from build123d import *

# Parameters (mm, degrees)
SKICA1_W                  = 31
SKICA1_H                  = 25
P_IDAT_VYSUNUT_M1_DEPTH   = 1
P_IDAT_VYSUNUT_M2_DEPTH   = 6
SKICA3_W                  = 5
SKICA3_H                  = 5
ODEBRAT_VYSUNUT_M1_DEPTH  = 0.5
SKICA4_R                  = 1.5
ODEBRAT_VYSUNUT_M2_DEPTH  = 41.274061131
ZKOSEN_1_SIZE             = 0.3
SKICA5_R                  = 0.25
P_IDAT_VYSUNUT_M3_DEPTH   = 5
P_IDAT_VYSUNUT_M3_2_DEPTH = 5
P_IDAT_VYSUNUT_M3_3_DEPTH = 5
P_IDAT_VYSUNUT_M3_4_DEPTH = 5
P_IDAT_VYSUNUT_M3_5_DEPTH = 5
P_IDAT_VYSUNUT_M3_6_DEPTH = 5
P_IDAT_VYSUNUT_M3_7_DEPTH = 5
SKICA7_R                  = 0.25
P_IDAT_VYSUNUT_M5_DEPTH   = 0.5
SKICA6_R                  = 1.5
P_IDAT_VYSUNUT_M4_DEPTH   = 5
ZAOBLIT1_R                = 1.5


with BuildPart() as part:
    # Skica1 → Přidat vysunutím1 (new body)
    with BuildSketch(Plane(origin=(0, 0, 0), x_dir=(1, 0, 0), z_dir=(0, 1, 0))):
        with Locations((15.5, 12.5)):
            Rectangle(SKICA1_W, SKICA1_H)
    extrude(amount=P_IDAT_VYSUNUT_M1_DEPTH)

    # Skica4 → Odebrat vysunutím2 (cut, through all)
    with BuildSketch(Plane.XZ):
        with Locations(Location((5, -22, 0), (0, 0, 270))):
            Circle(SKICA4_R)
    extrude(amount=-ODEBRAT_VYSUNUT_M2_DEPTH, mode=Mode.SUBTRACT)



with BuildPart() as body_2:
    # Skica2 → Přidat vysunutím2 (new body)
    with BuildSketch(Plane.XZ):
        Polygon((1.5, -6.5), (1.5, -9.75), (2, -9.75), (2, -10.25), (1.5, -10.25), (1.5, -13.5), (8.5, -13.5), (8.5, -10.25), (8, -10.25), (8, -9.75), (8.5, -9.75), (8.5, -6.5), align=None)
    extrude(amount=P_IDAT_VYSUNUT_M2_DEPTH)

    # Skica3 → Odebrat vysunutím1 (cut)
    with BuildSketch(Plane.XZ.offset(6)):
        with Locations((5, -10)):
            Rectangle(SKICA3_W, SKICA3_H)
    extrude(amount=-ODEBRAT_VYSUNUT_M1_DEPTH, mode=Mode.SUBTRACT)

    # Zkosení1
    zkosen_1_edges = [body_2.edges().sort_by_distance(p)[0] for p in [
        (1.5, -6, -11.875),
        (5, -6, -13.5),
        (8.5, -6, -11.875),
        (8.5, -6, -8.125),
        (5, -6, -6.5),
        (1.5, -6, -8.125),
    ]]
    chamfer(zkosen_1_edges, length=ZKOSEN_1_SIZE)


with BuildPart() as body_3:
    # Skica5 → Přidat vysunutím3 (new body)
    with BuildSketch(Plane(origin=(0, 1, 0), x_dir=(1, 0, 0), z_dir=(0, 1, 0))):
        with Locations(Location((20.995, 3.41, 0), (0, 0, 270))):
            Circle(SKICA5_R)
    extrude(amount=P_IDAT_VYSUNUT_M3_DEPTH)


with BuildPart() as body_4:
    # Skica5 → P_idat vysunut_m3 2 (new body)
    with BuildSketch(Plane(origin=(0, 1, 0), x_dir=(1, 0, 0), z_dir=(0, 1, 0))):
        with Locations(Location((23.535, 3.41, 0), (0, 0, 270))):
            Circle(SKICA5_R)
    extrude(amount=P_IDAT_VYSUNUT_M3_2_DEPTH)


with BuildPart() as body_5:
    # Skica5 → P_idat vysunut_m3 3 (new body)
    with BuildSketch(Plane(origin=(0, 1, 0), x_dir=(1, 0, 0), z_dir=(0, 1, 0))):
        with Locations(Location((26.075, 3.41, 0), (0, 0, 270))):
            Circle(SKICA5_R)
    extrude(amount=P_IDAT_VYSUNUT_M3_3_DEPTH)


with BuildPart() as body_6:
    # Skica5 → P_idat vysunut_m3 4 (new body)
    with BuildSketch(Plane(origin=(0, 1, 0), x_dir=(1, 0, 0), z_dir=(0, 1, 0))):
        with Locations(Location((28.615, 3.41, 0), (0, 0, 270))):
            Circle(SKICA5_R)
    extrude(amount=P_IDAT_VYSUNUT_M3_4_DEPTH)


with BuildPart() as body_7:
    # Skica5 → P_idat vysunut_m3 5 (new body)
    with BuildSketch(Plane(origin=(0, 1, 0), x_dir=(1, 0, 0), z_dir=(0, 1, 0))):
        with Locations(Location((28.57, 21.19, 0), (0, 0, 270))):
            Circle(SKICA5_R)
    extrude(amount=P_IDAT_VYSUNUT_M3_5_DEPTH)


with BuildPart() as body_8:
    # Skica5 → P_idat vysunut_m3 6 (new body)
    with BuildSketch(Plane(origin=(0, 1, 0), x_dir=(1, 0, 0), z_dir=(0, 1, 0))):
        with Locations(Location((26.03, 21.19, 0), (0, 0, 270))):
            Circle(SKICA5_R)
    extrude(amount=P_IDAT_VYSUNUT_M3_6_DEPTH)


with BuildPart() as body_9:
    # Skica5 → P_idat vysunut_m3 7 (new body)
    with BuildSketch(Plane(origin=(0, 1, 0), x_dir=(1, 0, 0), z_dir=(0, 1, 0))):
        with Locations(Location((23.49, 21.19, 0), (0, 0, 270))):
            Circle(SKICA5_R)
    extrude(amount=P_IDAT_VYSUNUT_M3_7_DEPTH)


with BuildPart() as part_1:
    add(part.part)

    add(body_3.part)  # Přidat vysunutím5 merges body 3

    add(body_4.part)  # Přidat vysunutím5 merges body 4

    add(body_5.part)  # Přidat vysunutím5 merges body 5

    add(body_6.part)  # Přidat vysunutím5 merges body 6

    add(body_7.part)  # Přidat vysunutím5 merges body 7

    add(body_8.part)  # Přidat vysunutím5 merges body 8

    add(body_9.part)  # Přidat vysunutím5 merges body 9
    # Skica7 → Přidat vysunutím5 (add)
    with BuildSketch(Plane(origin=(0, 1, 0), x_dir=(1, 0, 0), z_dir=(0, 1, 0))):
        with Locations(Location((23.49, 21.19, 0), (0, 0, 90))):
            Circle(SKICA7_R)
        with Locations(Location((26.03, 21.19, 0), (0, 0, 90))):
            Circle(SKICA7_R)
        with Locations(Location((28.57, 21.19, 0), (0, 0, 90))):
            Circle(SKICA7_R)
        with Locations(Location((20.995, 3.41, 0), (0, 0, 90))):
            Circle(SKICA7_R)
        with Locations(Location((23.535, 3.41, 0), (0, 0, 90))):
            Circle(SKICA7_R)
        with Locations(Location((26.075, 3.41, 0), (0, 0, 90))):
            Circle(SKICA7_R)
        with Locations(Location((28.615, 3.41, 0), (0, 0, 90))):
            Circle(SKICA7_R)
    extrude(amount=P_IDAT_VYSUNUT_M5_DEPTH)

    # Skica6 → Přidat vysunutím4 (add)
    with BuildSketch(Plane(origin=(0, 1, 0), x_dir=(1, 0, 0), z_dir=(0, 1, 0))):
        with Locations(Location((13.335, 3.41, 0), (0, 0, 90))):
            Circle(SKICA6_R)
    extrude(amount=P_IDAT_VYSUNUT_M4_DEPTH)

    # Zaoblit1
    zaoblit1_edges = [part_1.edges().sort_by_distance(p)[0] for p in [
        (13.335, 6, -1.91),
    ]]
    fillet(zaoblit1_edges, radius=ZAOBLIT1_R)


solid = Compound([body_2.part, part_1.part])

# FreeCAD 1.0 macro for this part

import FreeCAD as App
import Part
import Sketcher


def edges_at(feature, points):
    """Names of the edges that pass closest to the given points."""
    edges = feature.Shape.Edges
    near = lambda p: min(range(len(edges)), key=lambda i: edges[i].distToShape(Part.Vertex(*p))[0])
    return sorted({f"Edge{near(p) + 1}" for p in points})


def add_polygon(sketch, points):
    """Adds a closed chain of lines whose ends are joined by coincident constraints."""
    first, n = sketch.GeometryCount, len(points)
    for a, b in zip(points, points[1:] + points[:1]):
        sketch.addGeometry(Part.LineSegment(App.Vector(*a, 0), App.Vector(*b, 0)), False)
    for i in range(n):
        sketch.addConstraint(Sketcher.Constraint("Coincident", first + i, 2, first + (i + 1) % n, 1))

doc = App.newDocument("Part")
params = doc.addObject("Spreadsheet::Sheet", "Params")
for row, (alias, value) in enumerate([
    ("sketch1_width", "31 mm"),
    ("sketch1_height", "25 mm"),
    ("pad1_length", "1 mm"),
    ("sketch2_diameter", "3 mm"),
    ("sketch3_width", "7 mm"),
    ("sketch3_width2", "0.5 mm"),
    ("pad2_length", "6 mm"),
    ("sketch4_width", "5 mm"),
    ("pocket2_length", "0.5 mm"),
    ("chamfer_size", "0.3 mm"),
    ("sketch5_diameter", "0.5 mm"),
    ("pad3_length", "5 mm"),
    ("sketch6_diameter", "0.5 mm"),
    ("pad4_length", "5 mm"),
    ("sketch7_diameter", "0.5 mm"),
    ("pad5_length", "5 mm"),
    ("sketch8_diameter", "0.5 mm"),
    ("pad6_length", "5 mm"),
    ("sketch9_diameter", "0.5 mm"),
    ("pad7_length", "5 mm"),
    ("sketch10_diameter", "0.5 mm"),
    ("pad8_length", "5 mm"),
    ("sketch11_diameter", "0.5 mm"),
    ("pad9_length", "5 mm"),
    ("sketch12_diameter", "0.5 mm"),
    ("pad10_length", "0.5 mm"),
    ("sketch13_diameter", "3 mm"),
    ("pad11_length", "5 mm"),
    ("fillet_radius", "1.5 mm"),
], start=1):
    params.set(f"A{row}", alias)
    params.set(f"B{row}", "=" + value)
    params.setAlias(f"B{row}", alias)

body = doc.addObject("PartDesign::Body", "Body")

sketch1 = body.newObject("Sketcher::SketchObject", "Sketch")
sketch1.AttachmentSupport = (doc.getObject("XZ_Plane"), [""])
sketch1.MapMode = "FlatFace"
add_polygon(sketch1, [(0, -25), (0, 0), (31, 0), (31, -25)])
sketch1.addConstraint(Sketcher.Constraint("Vertical", 0))
sketch1.addConstraint(Sketcher.Constraint("Horizontal", 1))
sketch1.addConstraint(Sketcher.Constraint("Vertical", 2))
sketch1.addConstraint(Sketcher.Constraint("Horizontal", 3))
sketch1.addConstraint(Sketcher.Constraint("Coincident", 0, 2, -1, 1))
sketch1.addConstraint(Sketcher.Constraint("DistanceX", 1, 1, 1, 2, 31.0))
sketch1.addConstraint(Sketcher.Constraint("DistanceY", 0, 1, 0, 2, 25.0))
sketch1.setExpression("Constraints[9]", "Params.sketch1_width")
sketch1.setExpression("Constraints[10]", "Params.sketch1_height")
pad1 = body.newObject("PartDesign::Pad", "Pad")
pad1.Profile = sketch1
pad1.setExpression("Length", "Params.pad1_length")
pad1.Reversed = True

sketch2 = body.newObject("Sketcher::SketchObject", "Sketch001")
sketch2.AttachmentSupport = (doc.getObject("XZ_Plane"), [""])
sketch2.MapMode = "FlatFace"
sketch2.addGeometry(Part.Circle(App.Vector(5, -22, 0), App.Vector(0, 0, 1), 1.5), False)
sketch2.addConstraint(Sketcher.Constraint("Diameter", 0, 3.0))
sketch2.addConstraint(Sketcher.Constraint("DistanceX", -1, 1, 0, 3, 5.0))
sketch2.addConstraint(Sketcher.Constraint("DistanceY", 0, 3, -1, 1, 22.0))
sketch2.setExpression("Constraints[0]", "Params.sketch2_diameter")
pocket1 = body.newObject("PartDesign::Pocket", "Pocket")
pocket1.Profile = sketch2
pocket1.Type = "ThroughAll"
body2 = doc.addObject("PartDesign::Body", "Body001")

sketch3 = body2.newObject("Sketcher::SketchObject", "Sketch002")
sketch3.AttachmentSupport = (doc.getObject("XZ_Plane001"), [""])
sketch3.MapMode = "FlatFace"
add_polygon(sketch3, [(1.5, -6.5), (1.5, -9.8), (2, -9.8), (2, -10.2), (1.5, -10.2), (1.5, -13.5), (8.5, -13.5), (8.5, -10.2), (8, -10.2), (8, -9.8), (8.5, -9.8), (8.5, -6.5)])
sketch3.addConstraint(Sketcher.Constraint("Vertical", 0))
sketch3.addConstraint(Sketcher.Constraint("Horizontal", 1))
sketch3.addConstraint(Sketcher.Constraint("Vertical", 2))
sketch3.addConstraint(Sketcher.Constraint("Horizontal", 3))
sketch3.addConstraint(Sketcher.Constraint("Vertical", 4))
sketch3.addConstraint(Sketcher.Constraint("Horizontal", 5))
sketch3.addConstraint(Sketcher.Constraint("Vertical", 6))
sketch3.addConstraint(Sketcher.Constraint("Horizontal", 7))
sketch3.addConstraint(Sketcher.Constraint("Vertical", 8))
sketch3.addConstraint(Sketcher.Constraint("Horizontal", 9))
sketch3.addConstraint(Sketcher.Constraint("Vertical", 10))
sketch3.addConstraint(Sketcher.Constraint("Horizontal", 11))
sketch3.addConstraint(Sketcher.Constraint("Horizontal", 3, 2, 6, 2))
sketch3.addConstraint(Sketcher.Constraint("Horizontal", 1, 2, 8, 2))
sketch3.addConstraint(Sketcher.Constraint("Vertical", 0, 2, 3, 2))
sketch3.addConstraint(Sketcher.Constraint("Vertical", 6, 2, 9, 2))
sketch3.addConstraint(Sketcher.Constraint("Equal", 3, 7))
sketch3.addConstraint(Sketcher.Constraint("Equal", 9, 2))
sketch3.addConstraint(Sketcher.Constraint("Equal", 0, 4))
sketch3.addConstraint(Sketcher.Constraint("DistanceX", 5, 1, 5, 2, 7.0))
sketch3.addConstraint(Sketcher.Constraint("DistanceX", 1, 1, 1, 2, 0.5))
sketch3.addConstraint(Sketcher.Constraint("DistanceX", -1, 1, 1, 2, 2.0))
sketch3.addConstraint(Sketcher.Constraint("DistanceY", 5, 2, 10, 2, 7.0))
sketch3.addConstraint(Sketcher.Constraint("DistanceY", 4, 2, -1, 1, 13.5))
sketch3.setExpression("Constraints[31]", "Params.sketch3_width")
sketch3.setExpression("Constraints[32]", "Params.sketch3_width2")
pad2 = body2.newObject("PartDesign::Pad", "Pad001")
pad2.Profile = sketch3
pad2.setExpression("Length", "Params.pad2_length")

sketch4 = body2.newObject("Sketcher::SketchObject", "Sketch003")
sketch4.AttachmentSupport = (doc.getObject("XZ_Plane001"), [""])
sketch4.MapMode = "FlatFace"
sketch4.AttachmentOffset = App.Placement(App.Vector(0, 0, 6), App.Rotation())
add_polygon(sketch4, [(2, -8), (2, -12), (8, -12), (8, -8)])
sketch4.addConstraint(Sketcher.Constraint("Vertical", 0))
sketch4.addConstraint(Sketcher.Constraint("Horizontal", 1))
sketch4.addConstraint(Sketcher.Constraint("Vertical", 2))
sketch4.addConstraint(Sketcher.Constraint("Horizontal", 3))
sketch4.addConstraint(Sketcher.Constraint("Equal", 3, 0))
sketch4.addConstraint(Sketcher.Constraint("DistanceX", 1, 1, 1, 2, 5.0))
sketch4.addConstraint(Sketcher.Constraint("DistanceX", -1, 1, 0, 2, 2.5))
sketch4.addConstraint(Sketcher.Constraint("DistanceY", 0, 2, -1, 1, 12.5))
sketch4.setExpression("Constraints[9]", "Params.sketch4_width")
pocket2 = body2.newObject("PartDesign::Pocket", "Pocket001")
pocket2.Profile = sketch4
pocket2.setExpression("Length", "Params.pocket2_length")
doc.recompute()

chamfer = body2.newObject("PartDesign::Chamfer", "Chamfer")
chamfer.Base = (pocket2, edges_at(pocket2, [
    (1.5, -6, -11.875),
    (5, -6, -13.5),
    (8.5, -6, -11.875),
    (8.5, -6, -8.125),
    (5, -6, -6.5),
    (1.5, -6, -8.125),
]))
chamfer.setExpression("Size", "Params.chamfer_size")
body3 = doc.addObject("PartDesign::Body", "Body002")

sketch5 = body3.newObject("Sketcher::SketchObject", "Sketch004")
sketch5.AttachmentSupport = (doc.getObject("XZ_Plane002"), [""])
sketch5.MapMode = "FlatFace"
sketch5.AttachmentOffset = App.Placement(App.Vector(0, 0, -1), App.Rotation())
sketch5.addGeometry(Part.Circle(App.Vector(21, -3.41, 0), App.Vector(0, 0, 1), 0.25), False)
sketch5.addConstraint(Sketcher.Constraint("Diameter", 0, 0.5))
sketch5.addConstraint(Sketcher.Constraint("DistanceY", 0, 3, -1, 1, 3.41))
sketch5.addConstraint(Sketcher.Constraint("DistanceX", -1, 1, 0, 3, 20.995))
sketch5.setExpression("Constraints[0]", "Params.sketch5_diameter")
pad3 = body3.newObject("PartDesign::Pad", "Pad002")
pad3.Profile = sketch5
pad3.setExpression("Length", "Params.pad3_length")
pad3.Reversed = True
body4 = doc.addObject("PartDesign::Body", "Body003")

sketch6 = body4.newObject("Sketcher::SketchObject", "Sketch005")
sketch6.AttachmentSupport = (doc.getObject("XZ_Plane003"), [""])
sketch6.MapMode = "FlatFace"
sketch6.AttachmentOffset = App.Placement(App.Vector(0, 0, -1), App.Rotation())
sketch6.addGeometry(Part.Circle(App.Vector(23.54, -3.41, 0), App.Vector(0, 0, 1), 0.25), False)
sketch6.addConstraint(Sketcher.Constraint("Diameter", 0, 0.5))
sketch6.addConstraint(Sketcher.Constraint("DistanceY", 0, 3, -1, 1, 3.41))
sketch6.addConstraint(Sketcher.Constraint("DistanceX", -1, 1, 0, 3, 23.535))
sketch6.setExpression("Constraints[0]", "Params.sketch6_diameter")
pad4 = body4.newObject("PartDesign::Pad", "Pad003")
pad4.Profile = sketch6
pad4.setExpression("Length", "Params.pad4_length")
pad4.Reversed = True
body5 = doc.addObject("PartDesign::Body", "Body004")

sketch7 = body5.newObject("Sketcher::SketchObject", "Sketch006")
sketch7.AttachmentSupport = (doc.getObject("XZ_Plane004"), [""])
sketch7.MapMode = "FlatFace"
sketch7.AttachmentOffset = App.Placement(App.Vector(0, 0, -1), App.Rotation())
sketch7.addGeometry(Part.Circle(App.Vector(26.07, -3.41, 0), App.Vector(0, 0, 1), 0.25), False)
sketch7.addConstraint(Sketcher.Constraint("Diameter", 0, 0.5))
sketch7.addConstraint(Sketcher.Constraint("DistanceY", 0, 3, -1, 1, 3.41))
sketch7.addConstraint(Sketcher.Constraint("DistanceX", -1, 1, 0, 3, 26.075))
sketch7.setExpression("Constraints[0]", "Params.sketch7_diameter")
pad5 = body5.newObject("PartDesign::Pad", "Pad004")
pad5.Profile = sketch7
pad5.setExpression("Length", "Params.pad5_length")
pad5.Reversed = True
body6 = doc.addObject("PartDesign::Body", "Body005")

sketch8 = body6.newObject("Sketcher::SketchObject", "Sketch007")
sketch8.AttachmentSupport = (doc.getObject("XZ_Plane005"), [""])
sketch8.MapMode = "FlatFace"
sketch8.AttachmentOffset = App.Placement(App.Vector(0, 0, -1), App.Rotation())
sketch8.addGeometry(Part.Circle(App.Vector(28.61, -3.41, 0), App.Vector(0, 0, 1), 0.25), False)
sketch8.addConstraint(Sketcher.Constraint("Diameter", 0, 0.5))
sketch8.addConstraint(Sketcher.Constraint("DistanceY", 0, 3, -1, 1, 3.41))
sketch8.addConstraint(Sketcher.Constraint("DistanceX", -1, 1, 0, 3, 28.615))
sketch8.setExpression("Constraints[0]", "Params.sketch8_diameter")
pad6 = body6.newObject("PartDesign::Pad", "Pad005")
pad6.Profile = sketch8
pad6.setExpression("Length", "Params.pad6_length")
pad6.Reversed = True
body7 = doc.addObject("PartDesign::Body", "Body006")

sketch9 = body7.newObject("Sketcher::SketchObject", "Sketch008")
sketch9.AttachmentSupport = (doc.getObject("XZ_Plane006"), [""])
sketch9.MapMode = "FlatFace"
sketch9.AttachmentOffset = App.Placement(App.Vector(0, 0, -1), App.Rotation())
sketch9.addGeometry(Part.Circle(App.Vector(28.57, -21.19, 0), App.Vector(0, 0, 1), 0.25), False)
sketch9.addConstraint(Sketcher.Constraint("Diameter", 0, 0.5))
sketch9.addConstraint(Sketcher.Constraint("DistanceX", -1, 1, 0, 3, 28.57))
sketch9.addConstraint(Sketcher.Constraint("DistanceY", 0, 3, -1, 1, 21.19))
sketch9.setExpression("Constraints[0]", "Params.sketch9_diameter")
pad7 = body7.newObject("PartDesign::Pad", "Pad006")
pad7.Profile = sketch9
pad7.setExpression("Length", "Params.pad7_length")
pad7.Reversed = True
body8 = doc.addObject("PartDesign::Body", "Body007")

sketch10 = body8.newObject("Sketcher::SketchObject", "Sketch009")
sketch10.AttachmentSupport = (doc.getObject("XZ_Plane007"), [""])
sketch10.MapMode = "FlatFace"
sketch10.AttachmentOffset = App.Placement(App.Vector(0, 0, -1), App.Rotation())
sketch10.addGeometry(Part.Circle(App.Vector(26.03, -21.19, 0), App.Vector(0, 0, 1), 0.25), False)
sketch10.addConstraint(Sketcher.Constraint("Diameter", 0, 0.5))
sketch10.addConstraint(Sketcher.Constraint("DistanceX", -1, 1, 0, 3, 26.03))
sketch10.addConstraint(Sketcher.Constraint("DistanceY", 0, 3, -1, 1, 21.19))
sketch10.setExpression("Constraints[0]", "Params.sketch10_diameter")
pad8 = body8.newObject("PartDesign::Pad", "Pad007")
pad8.Profile = sketch10
pad8.setExpression("Length", "Params.pad8_length")
pad8.Reversed = True
body9 = doc.addObject("PartDesign::Body", "Body008")

sketch11 = body9.newObject("Sketcher::SketchObject", "Sketch010")
sketch11.AttachmentSupport = (doc.getObject("XZ_Plane008"), [""])
sketch11.MapMode = "FlatFace"
sketch11.AttachmentOffset = App.Placement(App.Vector(0, 0, -1), App.Rotation())
sketch11.addGeometry(Part.Circle(App.Vector(23.49, -21.19, 0), App.Vector(0, 0, 1), 0.25), False)
sketch11.addConstraint(Sketcher.Constraint("Diameter", 0, 0.5))
sketch11.addConstraint(Sketcher.Constraint("DistanceX", -1, 1, 0, 3, 23.49))
sketch11.addConstraint(Sketcher.Constraint("DistanceY", 0, 3, -1, 1, 21.19))
sketch11.setExpression("Constraints[0]", "Params.sketch11_diameter")
pad9 = body9.newObject("PartDesign::Pad", "Pad008")
pad9.Profile = sketch11
pad9.setExpression("Length", "Params.pad9_length")
pad9.Reversed = True
doc.recompute()

boolean = body.newObject("PartDesign::Boolean", "Boolean")
boolean.Type = "Fuse"
boolean.addObjects([body3])
doc.recompute()

boolean2 = body.newObject("PartDesign::Boolean", "Boolean001")
boolean2.Type = "Fuse"
boolean2.addObjects([body4])
doc.recompute()

boolean3 = body.newObject("PartDesign::Boolean", "Boolean002")
boolean3.Type = "Fuse"
boolean3.addObjects([body5])
doc.recompute()

boolean4 = body.newObject("PartDesign::Boolean", "Boolean003")
boolean4.Type = "Fuse"
boolean4.addObjects([body6])
doc.recompute()

boolean5 = body.newObject("PartDesign::Boolean", "Boolean004")
boolean5.Type = "Fuse"
boolean5.addObjects([body7])
doc.recompute()

boolean6 = body.newObject("PartDesign::Boolean", "Boolean005")
boolean6.Type = "Fuse"
boolean6.addObjects([body8])
doc.recompute()

boolean7 = body.newObject("PartDesign::Boolean", "Boolean006")
boolean7.Type = "Fuse"
boolean7.addObjects([body9])

sketch12 = body.newObject("Sketcher::SketchObject", "Sketch011")
sketch12.AttachmentSupport = (doc.getObject("XZ_Plane"), [""])
sketch12.MapMode = "FlatFace"
sketch12.AttachmentOffset = App.Placement(App.Vector(0, 0, -1), App.Rotation())
sketch12.addGeometry(Part.Circle(App.Vector(23.49, -21.19, 0), App.Vector(0, 0, 1), 0.25), False)
sketch12.addGeometry(Part.Circle(App.Vector(26.03, -21.19, 0), App.Vector(0, 0, 1), 0.25), False)
sketch12.addGeometry(Part.Circle(App.Vector(28.57, -21.19, 0), App.Vector(0, 0, 1), 0.25), False)
sketch12.addGeometry(Part.Circle(App.Vector(21, -3.41, 0), App.Vector(0, 0, 1), 0.25), False)
sketch12.addGeometry(Part.Circle(App.Vector(23.54, -3.41, 0), App.Vector(0, 0, 1), 0.25), False)
sketch12.addGeometry(Part.Circle(App.Vector(26.07, -3.41, 0), App.Vector(0, 0, 1), 0.25), False)
sketch12.addGeometry(Part.Circle(App.Vector(28.61, -3.41, 0), App.Vector(0, 0, 1), 0.25), False)
sketch12.addConstraint(Sketcher.Constraint("Equal", 0, 1))
sketch12.addConstraint(Sketcher.Constraint("Equal", 1, 2))
sketch12.addConstraint(Sketcher.Constraint("Equal", 2, 3))
sketch12.addConstraint(Sketcher.Constraint("Equal", 3, 4))
sketch12.addConstraint(Sketcher.Constraint("Equal", 4, 5))
sketch12.addConstraint(Sketcher.Constraint("Equal", 5, 6))
sketch12.addConstraint(Sketcher.Constraint("Horizontal", 0, 3, 1, 3))
sketch12.addConstraint(Sketcher.Constraint("Horizontal", 1, 3, 2, 3))
sketch12.addConstraint(Sketcher.Constraint("Horizontal", 3, 3, 4, 3))
sketch12.addConstraint(Sketcher.Constraint("Horizontal", 4, 3, 5, 3))
sketch12.addConstraint(Sketcher.Constraint("Horizontal", 5, 3, 6, 3))
sketch12.addConstraint(Sketcher.Constraint("Diameter", 0, 0.5))
sketch12.addConstraint(Sketcher.Constraint("DistanceX", -1, 1, 0, 3, 23.49))
sketch12.addConstraint(Sketcher.Constraint("DistanceY", 0, 3, -1, 1, 21.19))
sketch12.addConstraint(Sketcher.Constraint("DistanceX", -1, 1, 1, 3, 26.03))
sketch12.addConstraint(Sketcher.Constraint("DistanceX", -1, 1, 2, 3, 28.57))
sketch12.addConstraint(Sketcher.Constraint("DistanceY", 3, 3, -1, 1, 3.41))
sketch12.addConstraint(Sketcher.Constraint("DistanceX", 3, 3, 4, 3, 2.54))
sketch12.addConstraint(Sketcher.Constraint("DistanceX", 4, 3, 5, 3, 2.54))
sketch12.addConstraint(Sketcher.Constraint("DistanceX", 5, 3, 6, 3, 2.54))
sketch12.addConstraint(Sketcher.Constraint("DistanceX", -1, 1, 3, 3, 20.995))
sketch12.setExpression("Constraints[11]", "Params.sketch12_diameter")
pad10 = body.newObject("PartDesign::Pad", "Pad009")
pad10.Profile = sketch12
pad10.setExpression("Length", "Params.pad10_length")
pad10.Reversed = True

sketch13 = body.newObject("Sketcher::SketchObject", "Sketch012")
sketch13.AttachmentSupport = (doc.getObject("XZ_Plane"), [""])
sketch13.MapMode = "FlatFace"
sketch13.AttachmentOffset = App.Placement(App.Vector(0, 0, -1), App.Rotation())
sketch13.addGeometry(Part.Circle(App.Vector(13.3, -3.4, 0), App.Vector(0, 0, 1), 1.5), False)
sketch13.addConstraint(Sketcher.Constraint("Diameter", 0, 3.0))
sketch13.addConstraint(Sketcher.Constraint("DistanceY", 0, 3, -1, 1, 3.41))
sketch13.addConstraint(Sketcher.Constraint("DistanceX", -1, 1, 0, 3, 13.335))
sketch13.setExpression("Constraints[0]", "Params.sketch13_diameter")
pad11 = body.newObject("PartDesign::Pad", "Pad010")
pad11.Profile = sketch13
pad11.setExpression("Length", "Params.pad11_length")
pad11.Reversed = True
doc.recompute()

fillet = body.newObject("PartDesign::Fillet", "Fillet")
fillet.Base = (pad11, edges_at(pad11, [(13.335, 6, -1.91)]))
fillet.setExpression("Radius", "Params.fillet_radius")

doc.recompute()
